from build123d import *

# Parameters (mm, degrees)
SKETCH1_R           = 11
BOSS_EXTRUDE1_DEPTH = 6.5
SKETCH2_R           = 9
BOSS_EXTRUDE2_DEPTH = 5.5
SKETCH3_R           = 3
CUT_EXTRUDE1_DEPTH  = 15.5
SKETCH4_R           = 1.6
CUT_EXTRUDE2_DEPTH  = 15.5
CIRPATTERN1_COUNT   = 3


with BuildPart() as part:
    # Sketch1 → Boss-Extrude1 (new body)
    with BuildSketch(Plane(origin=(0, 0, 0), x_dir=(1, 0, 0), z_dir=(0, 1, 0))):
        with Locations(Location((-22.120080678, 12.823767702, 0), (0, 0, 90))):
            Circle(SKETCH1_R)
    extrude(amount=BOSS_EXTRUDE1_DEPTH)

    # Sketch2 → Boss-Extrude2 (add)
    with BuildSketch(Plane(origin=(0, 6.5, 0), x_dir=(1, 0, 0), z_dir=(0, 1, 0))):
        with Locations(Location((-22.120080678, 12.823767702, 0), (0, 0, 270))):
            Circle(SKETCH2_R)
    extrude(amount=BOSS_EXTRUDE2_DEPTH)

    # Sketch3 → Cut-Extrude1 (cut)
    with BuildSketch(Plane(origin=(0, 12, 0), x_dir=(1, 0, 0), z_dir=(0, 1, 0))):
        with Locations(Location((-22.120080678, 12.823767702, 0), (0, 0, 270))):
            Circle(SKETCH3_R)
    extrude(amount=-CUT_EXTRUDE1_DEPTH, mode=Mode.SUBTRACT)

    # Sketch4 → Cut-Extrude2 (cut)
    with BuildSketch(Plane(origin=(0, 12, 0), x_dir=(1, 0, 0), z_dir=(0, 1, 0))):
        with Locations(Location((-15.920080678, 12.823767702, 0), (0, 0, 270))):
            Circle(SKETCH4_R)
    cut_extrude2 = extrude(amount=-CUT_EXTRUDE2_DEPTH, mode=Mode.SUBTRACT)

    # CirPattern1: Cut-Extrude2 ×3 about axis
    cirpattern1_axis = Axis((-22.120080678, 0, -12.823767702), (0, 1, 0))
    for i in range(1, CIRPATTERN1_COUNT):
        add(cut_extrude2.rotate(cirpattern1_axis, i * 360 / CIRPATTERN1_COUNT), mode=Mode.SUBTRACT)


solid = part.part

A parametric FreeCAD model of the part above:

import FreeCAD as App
import Part
import Sketcher
from FreeCAD import Vector

doc = App.newDocument("Part")
body = doc.addObject("PartDesign::Body", "Body")

sketch1 = doc.addObject("Sketcher::SketchObject", "Sketch")
body.addObject(sketch1)
sketch1.AttachmentSupport = (doc.XZ_Plane, [""])
sketch1.MapMode = "FlatFace"
sketch1.addGeometry(Part.Circle(Vector(-22, -13, 0), Vector(0, 0, 1), 11), False)
sketch1.addConstraint([
    Sketcher.Constraint("Diameter", 0, 22.0),
    Sketcher.Constraint("DistanceX", 0, 3, -1, 1, 22.120081),
    Sketcher.Constraint("DistanceY", 0, 3, -1, 1, 12.823768),
])
pad1 = doc.addObject("PartDesign::Pad", "Pad")
body.addObject(pad1)
pad1.Profile = sketch1
pad1.Length = 6.5
pad1.Reversed = True

sketch2 = doc.addObject("Sketcher::SketchObject", "Sketch001")
body.addObject(sketch2)
sketch2.AttachmentSupport = (doc.XZ_Plane, [""])
sketch2.MapMode = "FlatFace"
sketch2.AttachmentOffset = App.Placement(Vector(0, 0, -6.5), App.Rotation())
sketch2.addGeometry(Part.Circle(Vector(-22, -13, 0), Vector(0, 0, 1), 9), False)
sketch2.addConstraint([
    Sketcher.Constraint("Diameter", 0, 18.0),
    Sketcher.Constraint("DistanceX", 0, 3, -1, 1, 22.120081),
    Sketcher.Constraint("DistanceY", 0, 3, -1, 1, 12.823768),
])
pad2 = doc.addObject("PartDesign::Pad", "Pad001")
body.addObject(pad2)
pad2.Profile = sketch2
pad2.Length = 5.5
pad2.Reversed = True

sketch3 = doc.addObject("Sketcher::SketchObject", "Sketch002")
body.addObject(sketch3)
sketch3.AttachmentSupport = (doc.XZ_Plane, [""])
sketch3.MapMode = "FlatFace"
sketch3.AttachmentOffset = App.Placement(Vector(0, 0, -12), App.Rotation())
sketch3.addGeometry(Part.Circle(Vector(-22.1, -12.8, 0), Vector(0, 0, 1), 3), False)
sketch3.addConstraint([
    Sketcher.Constraint("Diameter", 0, 6.0),
    Sketcher.Constraint("DistanceX", 0, 3, -1, 1, 22.120081),
    Sketcher.Constraint("DistanceY", 0, 3, -1, 1, 12.823768),
])
pocket1 = doc.addObject("PartDesign::Pocket", "Pocket")
body.addObject(pocket1)
pocket1.Profile = sketch3
pocket1.Length = 15.5
pocket1.Reversed = True

sketch4 = doc.addObject("Sketcher::SketchObject", "Sketch003")
body.addObject(sketch4)
sketch4.AttachmentSupport = (doc.XZ_Plane, [""])
sketch4.MapMode = "FlatFace"
sketch4.AttachmentOffset = App.Placement(Vector(0, 0, -12), App.Rotation())
sketch4.addGeometry(Part.Circle(Vector(-15.9, -12.8, 0), Vector(0, 0, 1), 1.6), False)
sketch4.addConstraint([
    Sketcher.Constraint("Diameter", 0, 3.2),
    Sketcher.Constraint("DistanceX", 0, 3, -1, 1, 15.920081),
    Sketcher.Constraint("DistanceY", 0, 3, -1, 1, 12.823768),
])
pocket2 = doc.addObject("PartDesign::Pocket", "Pocket001")
body.addObject(pocket2)
pocket2.Profile = sketch4
pocket2.Length = 15.5
pocket2.Reversed = True
doc.recompute()

datumline = doc.addObject("PartDesign::Line", "DatumLine")
body.addObject(datumline)
datumline.Placement = App.Placement(Vector(-22.120081, 0, -12.823768), App.Rotation(Vector(0, 0, 1), Vector(0, 1, 0)))
polarpattern = doc.addObject("PartDesign::PolarPattern", "PolarPattern")
body.addObject(polarpattern)
polarpattern.Originals = [pocket2]
polarpattern.Axis = (datumline, [""])
polarpattern.Angle = 360
polarpattern.Occurrences = 3
body.Tip = polarpattern

doc.recompute()
